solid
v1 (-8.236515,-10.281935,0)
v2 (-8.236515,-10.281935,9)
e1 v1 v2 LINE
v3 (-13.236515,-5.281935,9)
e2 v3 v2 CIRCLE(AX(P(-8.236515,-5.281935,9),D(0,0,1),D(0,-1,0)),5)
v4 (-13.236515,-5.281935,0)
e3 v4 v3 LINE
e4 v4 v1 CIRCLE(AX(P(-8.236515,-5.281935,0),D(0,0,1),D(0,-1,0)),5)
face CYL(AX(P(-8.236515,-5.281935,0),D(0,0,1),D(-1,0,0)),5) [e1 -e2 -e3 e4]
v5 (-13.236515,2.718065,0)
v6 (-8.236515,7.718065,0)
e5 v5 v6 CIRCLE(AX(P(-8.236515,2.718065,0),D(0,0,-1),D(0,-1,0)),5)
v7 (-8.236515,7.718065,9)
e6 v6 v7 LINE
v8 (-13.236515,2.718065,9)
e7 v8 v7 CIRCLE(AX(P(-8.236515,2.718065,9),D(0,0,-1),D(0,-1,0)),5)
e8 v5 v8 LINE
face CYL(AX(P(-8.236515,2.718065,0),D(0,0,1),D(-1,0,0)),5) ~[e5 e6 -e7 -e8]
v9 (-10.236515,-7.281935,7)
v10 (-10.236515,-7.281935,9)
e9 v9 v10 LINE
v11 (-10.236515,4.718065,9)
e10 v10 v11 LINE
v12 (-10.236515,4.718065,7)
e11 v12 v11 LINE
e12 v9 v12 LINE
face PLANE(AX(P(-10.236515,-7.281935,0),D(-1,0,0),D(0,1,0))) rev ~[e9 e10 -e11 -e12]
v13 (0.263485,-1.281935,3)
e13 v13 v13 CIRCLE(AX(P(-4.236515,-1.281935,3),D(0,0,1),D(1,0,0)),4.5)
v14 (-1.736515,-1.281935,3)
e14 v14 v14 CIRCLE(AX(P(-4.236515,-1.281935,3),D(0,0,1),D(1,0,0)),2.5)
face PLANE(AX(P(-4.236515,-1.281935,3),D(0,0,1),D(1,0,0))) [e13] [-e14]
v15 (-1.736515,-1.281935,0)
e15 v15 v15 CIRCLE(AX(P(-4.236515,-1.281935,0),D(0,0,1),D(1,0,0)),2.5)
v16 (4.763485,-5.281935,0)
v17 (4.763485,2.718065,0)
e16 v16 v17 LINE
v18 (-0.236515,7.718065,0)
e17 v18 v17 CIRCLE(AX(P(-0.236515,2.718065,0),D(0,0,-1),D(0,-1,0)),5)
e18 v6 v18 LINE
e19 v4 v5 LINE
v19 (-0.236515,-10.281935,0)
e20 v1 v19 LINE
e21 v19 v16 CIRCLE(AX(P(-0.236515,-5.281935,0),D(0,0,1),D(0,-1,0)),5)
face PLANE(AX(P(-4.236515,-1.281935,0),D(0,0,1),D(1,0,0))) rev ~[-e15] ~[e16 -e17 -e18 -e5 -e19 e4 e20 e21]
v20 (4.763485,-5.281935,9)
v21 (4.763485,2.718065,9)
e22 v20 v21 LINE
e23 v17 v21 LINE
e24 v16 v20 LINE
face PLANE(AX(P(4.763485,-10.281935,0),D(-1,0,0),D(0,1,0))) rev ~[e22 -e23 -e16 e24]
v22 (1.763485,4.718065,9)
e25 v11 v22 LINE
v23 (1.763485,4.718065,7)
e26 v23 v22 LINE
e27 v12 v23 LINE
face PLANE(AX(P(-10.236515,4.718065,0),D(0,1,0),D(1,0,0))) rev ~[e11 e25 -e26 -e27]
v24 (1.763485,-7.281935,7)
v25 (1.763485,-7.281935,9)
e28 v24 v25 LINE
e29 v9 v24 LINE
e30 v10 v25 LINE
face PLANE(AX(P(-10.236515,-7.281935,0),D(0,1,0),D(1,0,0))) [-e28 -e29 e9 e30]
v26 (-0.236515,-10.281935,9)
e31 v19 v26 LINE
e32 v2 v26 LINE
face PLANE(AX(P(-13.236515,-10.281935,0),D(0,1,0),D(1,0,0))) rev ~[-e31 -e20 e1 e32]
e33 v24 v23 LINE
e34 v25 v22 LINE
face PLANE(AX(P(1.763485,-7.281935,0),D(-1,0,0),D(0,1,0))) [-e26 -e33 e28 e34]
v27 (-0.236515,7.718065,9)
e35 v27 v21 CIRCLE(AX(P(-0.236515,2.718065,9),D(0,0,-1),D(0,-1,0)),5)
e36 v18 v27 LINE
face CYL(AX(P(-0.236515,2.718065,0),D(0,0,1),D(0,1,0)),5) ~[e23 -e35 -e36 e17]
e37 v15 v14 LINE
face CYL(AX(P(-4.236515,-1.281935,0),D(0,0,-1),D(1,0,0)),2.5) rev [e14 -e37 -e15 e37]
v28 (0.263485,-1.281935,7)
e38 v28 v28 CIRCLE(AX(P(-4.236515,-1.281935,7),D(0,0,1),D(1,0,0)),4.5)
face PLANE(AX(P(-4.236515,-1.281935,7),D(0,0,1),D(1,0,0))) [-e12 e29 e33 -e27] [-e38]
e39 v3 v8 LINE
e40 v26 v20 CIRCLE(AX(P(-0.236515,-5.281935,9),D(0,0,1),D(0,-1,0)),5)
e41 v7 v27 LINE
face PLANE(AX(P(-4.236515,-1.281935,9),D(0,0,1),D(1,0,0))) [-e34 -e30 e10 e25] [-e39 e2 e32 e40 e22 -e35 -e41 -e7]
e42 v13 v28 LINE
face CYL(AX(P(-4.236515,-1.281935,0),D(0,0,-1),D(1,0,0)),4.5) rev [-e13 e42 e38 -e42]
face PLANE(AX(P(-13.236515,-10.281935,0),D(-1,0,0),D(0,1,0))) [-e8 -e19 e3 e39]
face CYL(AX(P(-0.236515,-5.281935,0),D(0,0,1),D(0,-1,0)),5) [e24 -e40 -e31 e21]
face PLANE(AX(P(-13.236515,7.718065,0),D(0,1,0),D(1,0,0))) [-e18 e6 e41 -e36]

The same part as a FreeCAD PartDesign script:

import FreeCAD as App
import Part
import Sketcher

V = App.Vector


def edges_at(feature, points):
    """Names of the edges that pass closest to the given points."""
    edges = feature.Shape.Edges
    near = lambda p: min(range(len(edges)), key=lambda i: edges[i].distToShape(Part.Vertex(*p))[0])
    return sorted({f"Edge{near(p) + 1}" for p in points})


def add_polygon(sketch, points):
    """Adds a closed chain of lines whose ends are joined by coincident constraints."""
    first, n = sketch.GeometryCount, len(points)
    for a, b in zip(points, points[1:] + points[:1]):
        sketch.addGeometry(Part.LineSegment(App.Vector(*a, 0), App.Vector(*b, 0)), False)
    for i in range(n):
        sketch.addConstraint(Sketcher.Constraint("Coincident", first + i, 2, first + (i + 1) % n, 1))

doc = App.newDocument("Part")
body = doc.addObject("PartDesign::Body", "Body")

sketch1 = doc.addObject("Sketcher::SketchObject", "Sketch")
body.addObject(sketch1)
sketch1.AttachmentSupport = (doc.XY_Plane, [""])
sketch1.MapMode = "FlatFace"
add_polygon(sketch1, [(-10.236515, 4.718065), (-10.236515, -7.281935), (1.763485, -7.281935), (1.763485, 4.718065)])
sketch1.addGeometry(Part.Circle(V(-4.236515, -1.281935, 0), V(0, 0, 1), 4.5), False)
sketch1.addConstraint(Sketcher.Constraint("Vertical", 0))
sketch1.addConstraint(Sketcher.Constraint("Horizontal", 1))
sketch1.addConstraint(Sketcher.Constraint("Vertical", 2))
sketch1.addConstraint(Sketcher.Constraint("Horizontal", 3))
sketch1.addConstraint(Sketcher.Constraint("Equal", 3, 0))
sketch1.addConstraint(Sketcher.Constraint("Diameter", 4, 9.0))
sketch1.addConstraint(Sketcher.Constraint("DistanceX", 1, 1, 1, 2, 12.0))
sketch1.addConstraint(Sketcher.Constraint("DistanceX", 0, 2, 4, 3, 6.0))
sketch1.addConstraint(Sketcher.Constraint("DistanceY", 0, 2, 4, 3, 6.0))
sketch1.addConstraint(Sketcher.Constraint("DistanceX", 4, 3, -1, 1, 4.236515))
sketch1.addConstraint(Sketcher.Constraint("DistanceY", 4, 3, -1, 1, 1.281935))
pad1 = doc.addObject("PartDesign::Pad", "Pad")
body.addObject(pad1)
pad1.Profile = sketch1
pad1.Length = 7

sketch2 = doc.addObject("Sketcher::SketchObject", "Sketch001")
body.addObject(sketch2)
sketch2.AttachmentSupport = (doc.XY_Plane, [""])
sketch2.MapMode = "FlatFace"
add_polygon(sketch2, [(-13.236515, 7.718065), (-13.236515, -10.281935), (4.763485, -10.281935), (4.763485, 7.718065)])
add_polygon(sketch2, [(1.763485, -7.281935), (-10.236515, -7.281935), (-10.236515, 4.718065), (1.763485, 4.718065)])
sketch2.addConstraint(Sketcher.Constraint("Vertical", 0))
sketch2.addConstraint(Sketcher.Constraint("Horizontal", 1))
sketch2.addConstraint(Sketcher.Constraint("Vertical", 2))
sketch2.addConstraint(Sketcher.Constraint("Horizontal", 3))
sketch2.addConstraint(Sketcher.Constraint("Horizontal", 4))
sketch2.addConstraint(Sketcher.Constraint("Vertical", 5))
sketch2.addConstraint(Sketcher.Constraint("Horizontal", 6))
sketch2.addConstraint(Sketcher.Constraint("Vertical", 7))
sketch2.addConstraint(Sketcher.Constraint("Equal", 3, 0))
sketch2.addConstraint(Sketcher.Constraint("Equal", 6, 5))
sketch2.addConstraint(Sketcher.Constraint("DistanceX", 1, 1, 1, 2, 18.0))
sketch2.addConstraint(Sketcher.Constraint("DistanceX", 4, 2, 4, 1, 12.0))
sketch2.addConstraint(Sketcher.Constraint("DistanceX", 0, 2, 4, 2, 3.0))
sketch2.addConstraint(Sketcher.Constraint("DistanceY", 0, 2, 4, 2, 3.0))
sketch2.addConstraint(Sketcher.Constraint("DistanceX", 0, 2, -1, 1, 13.236515))
sketch2.addConstraint(Sketcher.Constraint("DistanceY", 0, 2, -1, 1, 10.281935))
pad2 = doc.addObject("PartDesign::Pad", "Pad001")
body.addObject(pad2)
pad2.Profile = sketch2
pad2.Length = 9
doc.recompute()

fillet = doc.addObject("PartDesign::Fillet", "Fillet")
body.addObject(fillet)
fillet.Base = (pad2, edges_at(pad2, [
    (-13.237, -10.282, 4.5),
    (4.763, -10.282, 4.5),
    (4.763, 7.718, 4.5),
    (-13.237, 7.718, 4.5),
]))
fillet.Radius = 5

sketch3 = doc.addObject("Sketcher::SketchObject", "Sketch002")
body.addObject(sketch3)
sketch3.AttachmentSupport = (doc.XY_Plane, [""])
sketch3.MapMode = "FlatFace"
sketch3.addGeometry(Part.Circle(V(-4.236515, -1.281935, 0), V(0, 0, 1), 4.5), False)
sketch3.addGeometry(Part.Circle(V(-4.236515, -1.281935, 0), V(0, 0, 1), 2.5), False)
sketch3.addConstraint(Sketcher.Constraint("Coincident", 1, 3, 0, 3))
sketch3.addConstraint(Sketcher.Constraint("Diameter", 0, 9.0))
sketch3.addConstraint(Sketcher.Constraint("Diameter", 1, 5.0))
sketch3.addConstraint(Sketcher.Constraint("DistanceX", 0, 3, -1, 1, 4.236515))
sketch3.addConstraint(Sketcher.Constraint("DistanceY", 0, 3, -1, 1, 1.281935))
pad3 = doc.addObject("PartDesign::Pad", "Pad002")
body.addObject(pad3)
pad3.Profile = sketch3
pad3.Length = 3

doc.recompute()
